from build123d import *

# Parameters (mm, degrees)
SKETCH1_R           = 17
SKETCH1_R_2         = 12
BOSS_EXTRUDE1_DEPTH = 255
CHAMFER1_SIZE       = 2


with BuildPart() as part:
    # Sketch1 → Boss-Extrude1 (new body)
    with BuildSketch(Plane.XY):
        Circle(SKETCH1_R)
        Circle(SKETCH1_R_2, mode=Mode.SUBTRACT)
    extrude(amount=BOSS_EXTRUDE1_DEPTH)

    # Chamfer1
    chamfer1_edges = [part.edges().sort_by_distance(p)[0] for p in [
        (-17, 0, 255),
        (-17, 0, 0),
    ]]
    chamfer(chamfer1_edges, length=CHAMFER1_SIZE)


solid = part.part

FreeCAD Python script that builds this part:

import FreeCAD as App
import Part
import Sketcher


def edges_at(feature, points):
    """Names of the edges that pass closest to the given points."""
    edges = feature.Shape.Edges
    near = lambda p: min(range(len(edges)), key=lambda i: edges[i].distToShape(Part.Vertex(*p))[0])
    return sorted({f"Edge{near(p) + 1}" for p in points})

doc = App.newDocument("Part")
body = doc.addObject("PartDesign::Body", "Body")

# Sketch on XY plane
sketch1 = body.newObject("Sketcher::SketchObject", "Sketch")
sketch1.AttachmentSupport = (doc.getObject("XY_Plane"), [""])
sketch1.MapMode = "FlatFace"
sketch1.addGeometry(Part.Circle(App.Vector(0, 0, 0), App.Vector(0, 0, 1), 17), False)
sketch1.addGeometry(Part.Circle(App.Vector(0, 0, 0), App.Vector(0, 0, 1), 12), False)
sketch1.addConstraint(Sketcher.Constraint("Coincident", 0, 3, -1, 1))
sketch1.addConstraint(Sketcher.Constraint("Coincident", 1, 3, -1, 1))
sketch1.addConstraint(Sketcher.Constraint("Diameter", 0, 34.0))
sketch1.addConstraint(Sketcher.Constraint("Diameter", 1, 24.0))
pad1 = body.newObject("PartDesign::Pad", "Pad")
pad1.Profile = sketch1
pad1.Length = 255
doc.recompute()

chamfer = body.newObject("PartDesign::Chamfer", "Chamfer")
chamfer.Base = (pad1, edges_at(pad1, [(-17, 0, 255), (-17, 0, 0)]))
chamfer.Size = 2

doc.recompute()
